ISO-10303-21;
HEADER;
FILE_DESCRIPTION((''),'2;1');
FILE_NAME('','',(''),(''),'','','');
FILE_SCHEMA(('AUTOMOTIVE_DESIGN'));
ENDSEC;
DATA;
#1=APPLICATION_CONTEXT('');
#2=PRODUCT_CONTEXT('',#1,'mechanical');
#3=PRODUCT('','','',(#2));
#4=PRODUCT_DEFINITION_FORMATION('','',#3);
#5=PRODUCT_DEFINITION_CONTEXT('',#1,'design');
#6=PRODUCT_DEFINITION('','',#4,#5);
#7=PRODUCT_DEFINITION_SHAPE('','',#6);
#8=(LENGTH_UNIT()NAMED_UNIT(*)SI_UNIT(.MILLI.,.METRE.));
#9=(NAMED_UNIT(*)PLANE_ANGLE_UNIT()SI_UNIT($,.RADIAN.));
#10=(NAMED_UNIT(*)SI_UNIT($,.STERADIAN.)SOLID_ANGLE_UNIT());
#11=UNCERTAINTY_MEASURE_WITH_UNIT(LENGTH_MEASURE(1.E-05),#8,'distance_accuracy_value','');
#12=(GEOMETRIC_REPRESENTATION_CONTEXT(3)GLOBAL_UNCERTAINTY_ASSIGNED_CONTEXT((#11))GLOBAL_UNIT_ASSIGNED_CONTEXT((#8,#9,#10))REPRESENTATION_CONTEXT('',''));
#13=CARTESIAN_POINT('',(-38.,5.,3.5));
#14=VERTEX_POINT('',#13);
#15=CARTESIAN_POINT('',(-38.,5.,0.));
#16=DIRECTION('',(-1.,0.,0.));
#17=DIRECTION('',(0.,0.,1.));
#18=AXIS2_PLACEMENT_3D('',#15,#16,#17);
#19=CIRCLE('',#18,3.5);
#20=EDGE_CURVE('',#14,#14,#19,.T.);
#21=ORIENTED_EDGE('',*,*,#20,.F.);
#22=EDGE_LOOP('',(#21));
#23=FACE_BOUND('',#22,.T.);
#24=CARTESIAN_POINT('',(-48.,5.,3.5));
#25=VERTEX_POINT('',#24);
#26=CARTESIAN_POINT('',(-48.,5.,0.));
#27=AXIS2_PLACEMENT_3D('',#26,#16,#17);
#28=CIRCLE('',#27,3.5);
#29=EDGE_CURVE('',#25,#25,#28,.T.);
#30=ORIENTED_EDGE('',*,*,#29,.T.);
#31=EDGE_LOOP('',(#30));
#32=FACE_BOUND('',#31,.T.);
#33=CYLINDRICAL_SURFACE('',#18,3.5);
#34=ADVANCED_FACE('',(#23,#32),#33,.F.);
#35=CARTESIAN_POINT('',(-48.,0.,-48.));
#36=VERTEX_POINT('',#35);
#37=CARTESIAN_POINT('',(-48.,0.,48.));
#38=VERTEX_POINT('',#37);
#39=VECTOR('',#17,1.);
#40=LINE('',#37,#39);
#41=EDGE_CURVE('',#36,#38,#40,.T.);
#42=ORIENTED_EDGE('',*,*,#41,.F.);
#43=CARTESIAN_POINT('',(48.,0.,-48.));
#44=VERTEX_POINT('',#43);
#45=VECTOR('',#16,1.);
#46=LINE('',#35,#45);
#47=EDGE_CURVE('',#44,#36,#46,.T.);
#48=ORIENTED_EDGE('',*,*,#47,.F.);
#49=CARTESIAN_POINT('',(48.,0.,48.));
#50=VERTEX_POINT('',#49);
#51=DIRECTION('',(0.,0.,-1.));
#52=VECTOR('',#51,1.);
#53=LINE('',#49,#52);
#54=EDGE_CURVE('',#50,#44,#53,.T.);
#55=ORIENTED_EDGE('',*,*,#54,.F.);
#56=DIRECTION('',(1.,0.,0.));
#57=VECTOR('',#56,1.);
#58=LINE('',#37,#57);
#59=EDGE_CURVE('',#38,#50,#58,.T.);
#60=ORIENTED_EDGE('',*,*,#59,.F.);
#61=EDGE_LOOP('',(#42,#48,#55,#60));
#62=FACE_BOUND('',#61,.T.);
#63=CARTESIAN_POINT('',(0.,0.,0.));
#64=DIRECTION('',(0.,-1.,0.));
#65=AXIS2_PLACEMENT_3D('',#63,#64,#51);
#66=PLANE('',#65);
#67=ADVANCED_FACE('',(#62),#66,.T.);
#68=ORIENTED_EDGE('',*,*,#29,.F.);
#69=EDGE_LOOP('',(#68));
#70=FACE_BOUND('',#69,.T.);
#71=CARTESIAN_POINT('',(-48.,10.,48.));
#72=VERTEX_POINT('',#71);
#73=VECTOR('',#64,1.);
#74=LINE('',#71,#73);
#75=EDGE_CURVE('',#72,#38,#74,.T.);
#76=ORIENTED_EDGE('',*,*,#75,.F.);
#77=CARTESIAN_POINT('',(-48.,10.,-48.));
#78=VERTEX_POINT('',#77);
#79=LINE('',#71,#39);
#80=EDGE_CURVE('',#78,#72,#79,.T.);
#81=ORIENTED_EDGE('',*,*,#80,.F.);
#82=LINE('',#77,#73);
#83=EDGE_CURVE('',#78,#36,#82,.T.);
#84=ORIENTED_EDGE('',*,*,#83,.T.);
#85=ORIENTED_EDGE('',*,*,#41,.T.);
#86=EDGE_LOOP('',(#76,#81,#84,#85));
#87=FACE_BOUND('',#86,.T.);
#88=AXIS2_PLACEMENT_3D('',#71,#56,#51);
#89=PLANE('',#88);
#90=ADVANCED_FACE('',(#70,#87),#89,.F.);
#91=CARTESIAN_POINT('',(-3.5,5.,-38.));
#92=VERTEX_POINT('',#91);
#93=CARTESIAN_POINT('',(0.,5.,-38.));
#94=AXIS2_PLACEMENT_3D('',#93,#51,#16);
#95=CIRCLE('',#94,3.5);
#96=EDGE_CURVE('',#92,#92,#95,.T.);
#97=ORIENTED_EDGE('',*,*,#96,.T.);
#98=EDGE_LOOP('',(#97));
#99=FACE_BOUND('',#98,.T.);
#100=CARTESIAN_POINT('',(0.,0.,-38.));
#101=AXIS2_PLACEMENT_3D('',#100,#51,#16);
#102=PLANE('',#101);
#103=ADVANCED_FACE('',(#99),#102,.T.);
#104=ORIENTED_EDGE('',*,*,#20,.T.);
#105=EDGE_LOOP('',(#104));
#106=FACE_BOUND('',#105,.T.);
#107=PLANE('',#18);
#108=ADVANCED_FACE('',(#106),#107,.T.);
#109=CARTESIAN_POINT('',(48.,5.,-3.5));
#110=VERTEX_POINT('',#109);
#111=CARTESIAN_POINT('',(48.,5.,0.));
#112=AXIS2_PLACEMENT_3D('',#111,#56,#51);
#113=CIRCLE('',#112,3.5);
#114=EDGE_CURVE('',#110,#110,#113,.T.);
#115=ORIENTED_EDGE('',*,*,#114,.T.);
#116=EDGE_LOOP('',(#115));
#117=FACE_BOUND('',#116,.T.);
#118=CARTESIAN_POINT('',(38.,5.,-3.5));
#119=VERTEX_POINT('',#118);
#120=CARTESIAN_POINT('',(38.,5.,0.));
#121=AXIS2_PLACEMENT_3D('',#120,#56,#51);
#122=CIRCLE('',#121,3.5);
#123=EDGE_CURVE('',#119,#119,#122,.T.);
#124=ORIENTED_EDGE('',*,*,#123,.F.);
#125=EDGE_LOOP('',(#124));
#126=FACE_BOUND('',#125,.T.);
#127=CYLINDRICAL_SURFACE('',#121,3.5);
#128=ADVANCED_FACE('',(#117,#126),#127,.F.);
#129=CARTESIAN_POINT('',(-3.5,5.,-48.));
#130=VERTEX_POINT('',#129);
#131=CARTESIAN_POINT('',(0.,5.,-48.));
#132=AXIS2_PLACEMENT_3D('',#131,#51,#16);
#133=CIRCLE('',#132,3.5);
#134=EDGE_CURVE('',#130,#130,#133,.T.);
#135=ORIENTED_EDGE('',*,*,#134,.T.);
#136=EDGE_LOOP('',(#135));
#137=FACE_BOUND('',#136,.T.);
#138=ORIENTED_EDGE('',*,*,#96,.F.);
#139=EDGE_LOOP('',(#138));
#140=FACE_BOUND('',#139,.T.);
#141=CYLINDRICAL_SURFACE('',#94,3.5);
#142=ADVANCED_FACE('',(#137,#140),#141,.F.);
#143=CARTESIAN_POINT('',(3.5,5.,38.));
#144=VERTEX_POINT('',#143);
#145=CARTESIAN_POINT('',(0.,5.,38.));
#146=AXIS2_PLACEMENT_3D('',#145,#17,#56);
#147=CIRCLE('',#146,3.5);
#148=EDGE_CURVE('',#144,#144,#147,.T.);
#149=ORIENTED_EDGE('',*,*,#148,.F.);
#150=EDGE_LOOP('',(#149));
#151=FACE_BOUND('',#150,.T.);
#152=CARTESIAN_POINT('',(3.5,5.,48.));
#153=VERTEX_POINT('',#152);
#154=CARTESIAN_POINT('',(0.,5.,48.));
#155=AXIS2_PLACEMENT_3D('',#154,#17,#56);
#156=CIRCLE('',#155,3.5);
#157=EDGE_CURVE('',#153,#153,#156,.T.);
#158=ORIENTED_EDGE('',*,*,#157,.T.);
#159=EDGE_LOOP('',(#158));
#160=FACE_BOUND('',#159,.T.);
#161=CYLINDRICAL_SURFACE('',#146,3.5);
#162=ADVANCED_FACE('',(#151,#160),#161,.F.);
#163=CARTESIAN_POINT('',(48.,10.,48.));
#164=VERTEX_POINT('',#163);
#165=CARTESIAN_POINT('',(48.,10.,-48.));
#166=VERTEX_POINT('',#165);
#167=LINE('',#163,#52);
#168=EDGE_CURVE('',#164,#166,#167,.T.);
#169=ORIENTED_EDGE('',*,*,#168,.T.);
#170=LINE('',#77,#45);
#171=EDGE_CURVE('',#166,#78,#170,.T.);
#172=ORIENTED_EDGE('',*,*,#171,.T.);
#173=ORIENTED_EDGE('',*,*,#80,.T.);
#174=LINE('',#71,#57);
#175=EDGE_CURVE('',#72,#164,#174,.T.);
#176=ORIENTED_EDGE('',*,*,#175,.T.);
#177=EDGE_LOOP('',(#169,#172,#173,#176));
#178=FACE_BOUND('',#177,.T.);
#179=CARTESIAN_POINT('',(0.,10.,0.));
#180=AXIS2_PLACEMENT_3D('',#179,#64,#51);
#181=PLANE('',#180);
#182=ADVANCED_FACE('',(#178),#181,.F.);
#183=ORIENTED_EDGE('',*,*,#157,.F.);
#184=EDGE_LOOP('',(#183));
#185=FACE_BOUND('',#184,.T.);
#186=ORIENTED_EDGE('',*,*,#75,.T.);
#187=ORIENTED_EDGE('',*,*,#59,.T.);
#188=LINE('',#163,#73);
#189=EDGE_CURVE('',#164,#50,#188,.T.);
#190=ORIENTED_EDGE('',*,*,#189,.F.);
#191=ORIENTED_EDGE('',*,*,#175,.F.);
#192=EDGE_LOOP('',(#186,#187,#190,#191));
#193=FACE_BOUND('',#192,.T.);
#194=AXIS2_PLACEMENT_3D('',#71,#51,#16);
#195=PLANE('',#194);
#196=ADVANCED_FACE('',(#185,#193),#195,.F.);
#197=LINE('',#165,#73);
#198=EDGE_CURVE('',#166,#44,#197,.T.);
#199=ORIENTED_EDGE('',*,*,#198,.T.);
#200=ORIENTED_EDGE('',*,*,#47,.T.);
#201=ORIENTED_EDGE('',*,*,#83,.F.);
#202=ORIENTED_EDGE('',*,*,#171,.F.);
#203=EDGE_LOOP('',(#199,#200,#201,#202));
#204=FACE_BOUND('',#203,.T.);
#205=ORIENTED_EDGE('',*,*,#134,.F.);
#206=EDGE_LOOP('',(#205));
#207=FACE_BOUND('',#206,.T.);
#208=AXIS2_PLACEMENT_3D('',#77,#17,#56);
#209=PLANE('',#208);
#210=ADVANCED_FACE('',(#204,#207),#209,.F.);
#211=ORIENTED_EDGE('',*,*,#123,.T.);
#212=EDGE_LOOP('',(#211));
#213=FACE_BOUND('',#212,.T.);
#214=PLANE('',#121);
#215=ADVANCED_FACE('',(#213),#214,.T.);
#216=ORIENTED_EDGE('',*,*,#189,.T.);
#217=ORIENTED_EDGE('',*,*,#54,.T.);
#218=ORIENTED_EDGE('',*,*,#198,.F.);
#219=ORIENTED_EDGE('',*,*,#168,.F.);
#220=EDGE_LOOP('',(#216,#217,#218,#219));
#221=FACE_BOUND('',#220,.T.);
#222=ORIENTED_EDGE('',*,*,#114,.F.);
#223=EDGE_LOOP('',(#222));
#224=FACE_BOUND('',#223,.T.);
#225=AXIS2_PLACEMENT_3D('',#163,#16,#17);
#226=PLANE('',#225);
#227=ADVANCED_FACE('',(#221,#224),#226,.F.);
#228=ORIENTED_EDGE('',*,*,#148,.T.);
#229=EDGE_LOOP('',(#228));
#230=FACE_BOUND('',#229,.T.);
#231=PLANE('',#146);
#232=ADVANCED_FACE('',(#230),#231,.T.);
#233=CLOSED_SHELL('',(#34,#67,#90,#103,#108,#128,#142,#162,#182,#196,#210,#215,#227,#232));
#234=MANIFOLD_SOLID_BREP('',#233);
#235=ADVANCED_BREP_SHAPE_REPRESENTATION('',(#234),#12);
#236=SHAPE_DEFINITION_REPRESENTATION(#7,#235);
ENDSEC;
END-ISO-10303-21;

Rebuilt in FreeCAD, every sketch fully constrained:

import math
import FreeCAD as App
import Part
import Sketcher


def add_polygon(sketch, points):
    """Adds a closed chain of lines whose ends are joined by coincident constraints."""
    first, n = sketch.GeometryCount, len(points)
    for a, b in zip(points, points[1:] + points[:1]):
        sketch.addGeometry(Part.LineSegment(App.Vector(*a, 0), App.Vector(*b, 0)), False)
    for i in range(n):
        sketch.addConstraint(Sketcher.Constraint("Coincident", first + i, 2, first + (i + 1) % n, 1))

doc = App.newDocument("Part")
params = doc.addObject("Spreadsheet::Sheet", "Params")
for row, (alias, value) in enumerate([
    ("sketch1_width", "96 mm"),
    ("pad1_length", "10 mm"),
    ("sketch2_diameter", "7 mm"),
    ("pocket1_length", "10 mm"),
    ("sketch3_diameter", "7 mm"),
    ("pocket2_length", "10 mm"),
    ("sketch4_radius", "3.5 mm"),
    ("pocket3_length", "10 mm"),
    ("sketch5_diameter", "7 mm"),
    ("pocket4_length", "10 mm"),
], start=1):
    params.set(f"A{row}", alias)
    params.set(f"B{row}", "=" + value)
    params.setAlias(f"B{row}", alias)

body = doc.addObject("PartDesign::Body", "Body")

sketch1 = doc.addObject("Sketcher::SketchObject", "Sketch")
body.addObject(sketch1)
sketch1.AttachmentSupport = (doc.XZ_Plane, [""])
sketch1.MapMode = "FlatFace"
add_polygon(sketch1, [(-48, -48), (-48, 48), (48, 48), (48, -48)])
sketch1.addConstraint([
    Sketcher.Constraint("Vertical", 0),
    Sketcher.Constraint("Horizontal", 1),
    Sketcher.Constraint("Vertical", 2),
    Sketcher.Constraint("Horizontal", 3),
    Sketcher.Constraint("Symmetric", 0, 2, 2, 2, -1, 1),
    Sketcher.Constraint("Equal", 3, 0),
    Sketcher.Constraint("DistanceX", 1, 1, 1, 2, 96.0),
])
sketch1.setExpression("Constraints[10]", "Params.sketch1_width")
pad1 = doc.addObject("PartDesign::Pad", "Pad")
body.addObject(pad1)
pad1.Profile = sketch1
pad1.setExpression("Length", "Params.pad1_length")
pad1.Reversed = True

sketch2 = doc.addObject("Sketcher::SketchObject", "Sketch001")
body.addObject(sketch2)
sketch2.AttachmentSupport = (doc.XY_Plane, [""])
sketch2.MapMode = "FlatFace"
sketch2.AttachmentOffset = App.Placement(App.Vector(0, 0, 48), App.Rotation())
sketch2.addGeometry(Part.Circle(App.Vector(0, 5, 0), App.Vector(0, 0, 1), 3.5), False)
sketch2.addConstraint([
    Sketcher.Constraint("PointOnObject", 0, 3, -2),
    Sketcher.Constraint("Diameter", 0, 7.0),
    Sketcher.Constraint("DistanceY", -1, 1, 0, 3, 5.0),
])
sketch2.setExpression("Constraints[1]", "Params.sketch2_diameter")
pocket1 = doc.addObject("PartDesign::Pocket", "Pocket")
body.addObject(pocket1)
pocket1.Profile = sketch2
pocket1.setExpression("Length", "Params.pocket1_length")

sketch3 = doc.addObject("Sketcher::SketchObject", "Sketch002")
body.addObject(sketch3)
sketch3.AttachmentSupport = (doc.YZ_Plane, [""])
sketch3.MapMode = "FlatFace"
sketch3.AttachmentOffset = App.Placement(App.Vector(0, 0, 48), App.Rotation())
sketch3.addGeometry(Part.Circle(App.Vector(5, 0, 0), App.Vector(0, 0, 1), 3.5), False)
sketch3.addConstraint([
    Sketcher.Constraint("PointOnObject", 0, 3, -1),
    Sketcher.Constraint("Diameter", 0, 7.0),
    Sketcher.Constraint("DistanceX", -1, 1, 0, 3, 5.0),
])
sketch3.setExpression("Constraints[1]", "Params.sketch3_diameter")
pocket2 = doc.addObject("PartDesign::Pocket", "Pocket001")
body.addObject(pocket2)
pocket2.Profile = sketch3
pocket2.setExpression("Length", "Params.pocket2_length")

sketch4 = doc.addObject("Sketcher::SketchObject", "Sketch003")
body.addObject(sketch4)
sketch4.AttachmentSupport = (doc.XY_Plane, [""])
sketch4.MapMode = "FlatFace"
sketch4.AttachmentOffset = App.Placement(App.Vector(0, 0, -48), App.Rotation())
sketch4.addGeometry([
    Part.ArcOfCircle(Part.Circle(App.Vector(0, 5, 0), App.Vector(0, 0, 1), 3.5), math.radians(-174), math.radians(-6)),
    Part.ArcOfCircle(Part.Circle(App.Vector(0, 5, 0), App.Vector(0, 0, 1), 3.5), math.radians(180), math.radians(185.95)),
    Part.ArcOfCircle(Part.Circle(App.Vector(0, 5, 0), App.Vector(0, 0, 1), 3.5), math.radians(174.05), math.radians(180)),
    Part.ArcOfCircle(Part.Circle(App.Vector(0, 5, 0), App.Vector(0, 0, 1), 3.5), math.radians(6), math.radians(174)),
    Part.ArcOfCircle(Part.Circle(App.Vector(0, 5, 0), App.Vector(0, 0, 1), 3.5), math.radians(-5.95), math.radians(5.95)),
], False)
sketch4.addConstraint([
    Sketcher.Constraint("Tangent", 0, 1, 1, 2),
    Sketcher.Constraint("Tangent", 1, 1, 2, 2),
    Sketcher.Constraint("Tangent", 2, 1, 3, 2),
    Sketcher.Constraint("Tangent", 3, 1, 4, 2),
    Sketcher.Constraint("Tangent", 4, 1, 0, 2),
    Sketcher.Constraint("Coincident", 2, 3, 0, 3),
    Sketcher.Constraint("Symmetric", 2, 1, 3, 1, -2),
    Sketcher.Constraint("Horizontal", 4, 3, 1, 1),
    Sketcher.Constraint("Horizontal", 0, 1, 4, 1),
    Sketcher.Constraint("Vertical", 0, 1, 2, 1),
    Sketcher.Constraint("Radius", 0, 3.5),
    Sketcher.Constraint("DistanceY", -1, 1, 0, 3, 5.0),
    Sketcher.Constraint("DistanceY", -1, 1, 0, 1, 4.637379),
])
sketch4.setExpression("Constraints[10]", "Params.sketch4_radius")
pocket3 = doc.addObject("PartDesign::Pocket", "Pocket002")
body.addObject(pocket3)
pocket3.Profile = sketch4
pocket3.setExpression("Length", "Params.pocket3_length")
pocket3.Reversed = True

sketch5 = doc.addObject("Sketcher::SketchObject", "Sketch004")
body.addObject(sketch5)
sketch5.AttachmentSupport = (doc.YZ_Plane, [""])
sketch5.MapMode = "FlatFace"
sketch5.AttachmentOffset = App.Placement(App.Vector(0, 0, -48), App.Rotation())
sketch5.addGeometry(Part.Circle(App.Vector(5, 0, 0), App.Vector(0, 0, 1), 3.5), False)
sketch5.addConstraint([
    Sketcher.Constraint("PointOnObject", 0, 3, -1),
    Sketcher.Constraint("Diameter", 0, 7.0),
    Sketcher.Constraint("DistanceX", -1, 1, 0, 3, 5.0),
])
sketch5.setExpression("Constraints[1]", "Params.sketch5_diameter")
pocket4 = doc.addObject("PartDesign::Pocket", "Pocket003")
body.addObject(pocket4)
pocket4.Profile = sketch5
pocket4.setExpression("Length", "Params.pocket4_length")
pocket4.Reversed = True

doc.recompute()
